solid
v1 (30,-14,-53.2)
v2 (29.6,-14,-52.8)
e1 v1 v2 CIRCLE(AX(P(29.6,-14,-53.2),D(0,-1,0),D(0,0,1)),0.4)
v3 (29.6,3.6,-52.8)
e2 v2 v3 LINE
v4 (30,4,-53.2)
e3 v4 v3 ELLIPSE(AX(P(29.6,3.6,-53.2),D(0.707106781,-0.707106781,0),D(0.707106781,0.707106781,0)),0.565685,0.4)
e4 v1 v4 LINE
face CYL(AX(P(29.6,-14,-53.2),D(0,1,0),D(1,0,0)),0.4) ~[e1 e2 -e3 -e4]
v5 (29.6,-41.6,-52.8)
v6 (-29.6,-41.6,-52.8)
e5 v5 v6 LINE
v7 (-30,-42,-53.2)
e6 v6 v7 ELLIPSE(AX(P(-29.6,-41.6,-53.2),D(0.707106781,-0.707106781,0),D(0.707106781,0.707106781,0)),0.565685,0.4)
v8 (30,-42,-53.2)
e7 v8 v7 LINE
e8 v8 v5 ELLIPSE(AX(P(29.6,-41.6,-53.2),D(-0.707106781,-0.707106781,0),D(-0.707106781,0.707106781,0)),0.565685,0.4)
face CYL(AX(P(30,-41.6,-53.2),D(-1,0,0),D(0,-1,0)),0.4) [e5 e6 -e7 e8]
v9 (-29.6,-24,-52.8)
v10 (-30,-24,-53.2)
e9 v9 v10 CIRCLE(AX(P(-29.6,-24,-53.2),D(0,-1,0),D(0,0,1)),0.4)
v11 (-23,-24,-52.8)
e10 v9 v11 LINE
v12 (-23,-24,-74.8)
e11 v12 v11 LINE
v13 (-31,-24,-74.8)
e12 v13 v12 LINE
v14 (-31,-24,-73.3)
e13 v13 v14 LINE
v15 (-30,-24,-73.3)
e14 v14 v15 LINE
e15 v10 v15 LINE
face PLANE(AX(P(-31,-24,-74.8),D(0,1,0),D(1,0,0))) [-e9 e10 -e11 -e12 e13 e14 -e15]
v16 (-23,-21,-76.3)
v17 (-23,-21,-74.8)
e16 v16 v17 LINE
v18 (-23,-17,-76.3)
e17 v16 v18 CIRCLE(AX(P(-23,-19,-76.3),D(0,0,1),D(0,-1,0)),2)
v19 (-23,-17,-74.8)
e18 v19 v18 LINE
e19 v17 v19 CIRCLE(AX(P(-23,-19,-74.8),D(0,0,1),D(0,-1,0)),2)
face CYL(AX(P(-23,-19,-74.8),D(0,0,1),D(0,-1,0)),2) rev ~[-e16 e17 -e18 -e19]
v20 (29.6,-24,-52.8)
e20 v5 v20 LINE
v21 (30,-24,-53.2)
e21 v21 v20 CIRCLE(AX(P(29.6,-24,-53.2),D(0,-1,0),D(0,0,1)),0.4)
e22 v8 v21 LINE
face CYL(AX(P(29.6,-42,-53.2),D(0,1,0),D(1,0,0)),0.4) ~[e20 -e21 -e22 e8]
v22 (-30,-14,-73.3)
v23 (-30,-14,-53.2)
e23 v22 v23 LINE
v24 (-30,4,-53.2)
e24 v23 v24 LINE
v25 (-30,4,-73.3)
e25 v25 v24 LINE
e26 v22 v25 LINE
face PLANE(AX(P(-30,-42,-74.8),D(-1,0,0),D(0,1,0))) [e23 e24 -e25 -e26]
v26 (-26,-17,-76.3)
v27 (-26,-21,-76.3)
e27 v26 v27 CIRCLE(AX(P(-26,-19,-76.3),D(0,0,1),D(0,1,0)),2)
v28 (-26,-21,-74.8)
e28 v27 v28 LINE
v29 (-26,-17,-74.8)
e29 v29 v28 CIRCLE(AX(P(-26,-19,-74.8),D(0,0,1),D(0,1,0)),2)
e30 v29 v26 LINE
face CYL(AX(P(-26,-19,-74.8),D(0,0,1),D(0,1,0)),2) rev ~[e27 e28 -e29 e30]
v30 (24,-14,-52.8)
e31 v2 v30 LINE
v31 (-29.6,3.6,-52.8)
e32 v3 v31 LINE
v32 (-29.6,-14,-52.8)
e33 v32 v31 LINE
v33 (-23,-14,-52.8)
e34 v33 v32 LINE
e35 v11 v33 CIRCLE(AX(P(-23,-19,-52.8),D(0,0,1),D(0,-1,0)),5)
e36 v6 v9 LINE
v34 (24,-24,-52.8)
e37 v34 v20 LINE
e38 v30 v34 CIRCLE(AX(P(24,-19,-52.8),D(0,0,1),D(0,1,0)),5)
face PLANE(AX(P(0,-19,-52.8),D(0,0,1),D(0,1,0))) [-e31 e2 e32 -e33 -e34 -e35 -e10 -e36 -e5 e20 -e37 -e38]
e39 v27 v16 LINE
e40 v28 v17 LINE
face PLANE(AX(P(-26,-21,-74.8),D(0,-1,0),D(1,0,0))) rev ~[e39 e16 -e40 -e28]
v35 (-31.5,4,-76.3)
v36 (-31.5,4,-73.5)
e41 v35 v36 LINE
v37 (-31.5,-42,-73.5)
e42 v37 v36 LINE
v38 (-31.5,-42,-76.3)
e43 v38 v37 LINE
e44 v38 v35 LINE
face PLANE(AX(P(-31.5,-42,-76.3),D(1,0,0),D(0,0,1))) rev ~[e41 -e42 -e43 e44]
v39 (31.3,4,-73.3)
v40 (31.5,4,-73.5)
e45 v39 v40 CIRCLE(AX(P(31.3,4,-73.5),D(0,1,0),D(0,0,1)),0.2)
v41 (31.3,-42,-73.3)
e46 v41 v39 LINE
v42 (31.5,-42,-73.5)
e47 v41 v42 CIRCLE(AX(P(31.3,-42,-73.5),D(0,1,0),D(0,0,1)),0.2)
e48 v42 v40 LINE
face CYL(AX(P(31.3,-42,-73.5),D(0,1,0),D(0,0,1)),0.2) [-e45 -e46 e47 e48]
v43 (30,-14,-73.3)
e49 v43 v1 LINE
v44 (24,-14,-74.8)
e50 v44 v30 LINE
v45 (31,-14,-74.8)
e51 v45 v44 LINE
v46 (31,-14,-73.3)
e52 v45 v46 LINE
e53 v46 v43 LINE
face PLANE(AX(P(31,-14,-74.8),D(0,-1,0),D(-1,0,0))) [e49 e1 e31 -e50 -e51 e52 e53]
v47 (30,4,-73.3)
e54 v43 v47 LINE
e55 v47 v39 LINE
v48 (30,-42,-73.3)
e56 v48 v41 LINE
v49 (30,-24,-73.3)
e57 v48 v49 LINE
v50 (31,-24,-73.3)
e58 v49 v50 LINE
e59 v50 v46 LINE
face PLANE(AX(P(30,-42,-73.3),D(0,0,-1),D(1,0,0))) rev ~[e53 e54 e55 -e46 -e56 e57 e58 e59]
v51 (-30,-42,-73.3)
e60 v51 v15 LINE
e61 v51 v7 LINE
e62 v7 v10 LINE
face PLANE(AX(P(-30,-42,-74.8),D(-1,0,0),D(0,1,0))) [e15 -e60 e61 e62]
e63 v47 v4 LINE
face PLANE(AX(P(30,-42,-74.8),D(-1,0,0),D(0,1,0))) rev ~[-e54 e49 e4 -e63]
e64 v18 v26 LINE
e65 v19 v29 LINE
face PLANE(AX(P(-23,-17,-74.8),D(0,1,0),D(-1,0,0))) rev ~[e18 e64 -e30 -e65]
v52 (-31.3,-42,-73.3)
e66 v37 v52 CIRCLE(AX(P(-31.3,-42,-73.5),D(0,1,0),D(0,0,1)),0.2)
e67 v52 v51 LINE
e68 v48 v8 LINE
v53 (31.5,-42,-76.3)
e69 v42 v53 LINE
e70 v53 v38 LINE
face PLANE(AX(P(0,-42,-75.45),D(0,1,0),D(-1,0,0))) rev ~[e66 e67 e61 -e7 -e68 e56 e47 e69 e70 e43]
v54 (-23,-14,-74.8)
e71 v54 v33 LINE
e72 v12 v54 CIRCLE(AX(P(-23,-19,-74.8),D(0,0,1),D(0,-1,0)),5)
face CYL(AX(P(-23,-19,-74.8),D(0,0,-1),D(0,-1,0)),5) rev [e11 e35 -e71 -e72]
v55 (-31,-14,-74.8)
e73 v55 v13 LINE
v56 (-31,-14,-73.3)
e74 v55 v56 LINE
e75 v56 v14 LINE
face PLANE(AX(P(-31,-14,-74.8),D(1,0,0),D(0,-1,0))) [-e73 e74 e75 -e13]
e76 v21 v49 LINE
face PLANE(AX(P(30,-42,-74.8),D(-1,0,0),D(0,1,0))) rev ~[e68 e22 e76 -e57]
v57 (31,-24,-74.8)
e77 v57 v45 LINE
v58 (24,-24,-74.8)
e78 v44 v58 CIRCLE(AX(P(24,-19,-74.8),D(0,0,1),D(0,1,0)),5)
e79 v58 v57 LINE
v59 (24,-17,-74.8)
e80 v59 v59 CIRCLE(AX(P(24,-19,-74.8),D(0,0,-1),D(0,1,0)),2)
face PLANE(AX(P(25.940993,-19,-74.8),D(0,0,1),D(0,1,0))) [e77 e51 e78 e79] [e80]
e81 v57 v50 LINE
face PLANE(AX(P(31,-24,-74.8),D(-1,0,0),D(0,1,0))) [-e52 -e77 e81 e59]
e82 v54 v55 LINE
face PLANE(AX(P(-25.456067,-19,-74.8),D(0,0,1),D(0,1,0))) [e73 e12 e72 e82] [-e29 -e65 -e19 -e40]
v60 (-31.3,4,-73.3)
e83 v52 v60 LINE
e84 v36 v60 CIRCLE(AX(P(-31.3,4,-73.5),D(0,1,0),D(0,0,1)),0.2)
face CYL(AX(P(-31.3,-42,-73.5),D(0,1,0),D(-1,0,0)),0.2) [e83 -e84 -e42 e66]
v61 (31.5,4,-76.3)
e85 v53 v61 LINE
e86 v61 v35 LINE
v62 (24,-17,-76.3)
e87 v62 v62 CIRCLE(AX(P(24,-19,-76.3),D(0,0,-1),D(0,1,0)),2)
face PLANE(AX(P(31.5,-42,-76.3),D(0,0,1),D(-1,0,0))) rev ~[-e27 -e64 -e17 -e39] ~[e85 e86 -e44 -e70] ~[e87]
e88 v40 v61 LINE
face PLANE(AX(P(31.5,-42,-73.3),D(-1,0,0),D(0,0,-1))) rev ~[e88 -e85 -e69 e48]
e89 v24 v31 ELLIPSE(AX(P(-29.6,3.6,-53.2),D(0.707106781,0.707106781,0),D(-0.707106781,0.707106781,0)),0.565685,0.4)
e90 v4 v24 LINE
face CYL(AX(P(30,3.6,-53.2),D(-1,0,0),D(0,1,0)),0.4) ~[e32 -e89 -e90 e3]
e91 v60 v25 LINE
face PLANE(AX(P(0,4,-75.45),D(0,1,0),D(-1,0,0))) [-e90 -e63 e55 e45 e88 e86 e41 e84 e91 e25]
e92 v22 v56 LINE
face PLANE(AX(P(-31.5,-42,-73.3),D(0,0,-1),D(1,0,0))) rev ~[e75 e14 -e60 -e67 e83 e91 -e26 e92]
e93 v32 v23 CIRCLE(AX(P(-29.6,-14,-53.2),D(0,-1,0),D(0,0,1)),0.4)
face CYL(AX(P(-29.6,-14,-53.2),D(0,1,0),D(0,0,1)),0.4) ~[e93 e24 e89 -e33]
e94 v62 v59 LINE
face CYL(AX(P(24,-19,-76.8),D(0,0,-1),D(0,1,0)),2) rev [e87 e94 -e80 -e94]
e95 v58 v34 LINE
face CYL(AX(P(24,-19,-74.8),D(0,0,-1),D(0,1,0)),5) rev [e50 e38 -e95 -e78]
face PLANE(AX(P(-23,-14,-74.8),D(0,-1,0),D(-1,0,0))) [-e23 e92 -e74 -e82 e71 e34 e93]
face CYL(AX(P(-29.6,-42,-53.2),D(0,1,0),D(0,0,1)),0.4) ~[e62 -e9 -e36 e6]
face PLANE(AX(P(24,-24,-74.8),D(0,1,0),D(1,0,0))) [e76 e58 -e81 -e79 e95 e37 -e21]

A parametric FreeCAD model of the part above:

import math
import FreeCAD as App
import Part
import Sketcher
from FreeCAD import Vector
Q = App.Units.Quantity


def edges_at(feature, points):
    """Names of the edges that pass closest to the given points."""
    edges = feature.Shape.Edges
    near = lambda p: min(range(len(edges)), key=lambda i: edges[i].distToShape(Part.Vertex(*p))[0])
    return sorted({f"Edge{near(p) + 1}" for p in points})

doc = App.newDocument("Part")
body = doc.addObject("PartDesign::Body", "Body")

# Sketch on XY plane
sketch1 = body.newObject("Sketcher::SketchObject", "Sketch")
sketch1.AttachmentSupport = (doc.getObject("XY_Plane"), [""])
sketch1.MapMode = "FlatFace"
sketch1.addGeometry([
    Part.LineSegment(Vector(0, 60, 0), Vector(0, 0, 0)),
    Part.LineSegment(Vector(0, 0, 0), Vector(46, 0, 0)),
    Part.LineSegment(Vector(46, 0, 0), Vector(46, 60, 0)),
    Part.LineSegment(Vector(46, 60, 0), Vector(0, 60, 0)),
], False)
sketch1.addConstraint([
    Sketcher.Constraint("Coincident", 0, 2, 1, 1),
    Sketcher.Constraint("Coincident", 1, 2, 2, 1),
    Sketcher.Constraint("Coincident", 2, 2, 3, 1),
    Sketcher.Constraint("Coincident", 3, 2, 0, 1),
    Sketcher.Constraint("Vertical", 0),
    Sketcher.Constraint("Horizontal", 1),
    Sketcher.Constraint("Vertical", 2),
    Sketcher.Constraint("Horizontal", 3),
    Sketcher.Constraint("Coincident", 0, 2, -1, 1),
    Sketcher.Constraint("DistanceX", 1, 1, 1, 2, Q("46 mm")),
    Sketcher.Constraint("DistanceY", 0, 2, 0, 1, Q("60 mm")),
])
pad1 = body.newObject("PartDesign::Pad", "Pad")
pad1.Profile = sketch1
pad1.Length = 22

# Sketch on YZ plane
sketch2 = body.newObject("Sketcher::SketchObject", "Sketch001")
sketch2.AttachmentSupport = (doc.getObject("YZ_Plane"), [""])
sketch2.MapMode = "FlatFace"
sketch2.addGeometry([
    Part.LineSegment(Vector(0, 1.5, 0), Vector(-1.5, 1.5, 0)),  # 0
    Part.LineSegment(Vector(-1.5, 1.5, 0), Vector(-1.5, -1.5, 0)),  # 1
    Part.LineSegment(Vector(-1.5, -1.5, 0), Vector(61.5, -1.5, 0)),  # 2
    Part.LineSegment(Vector(61.5, -1.5, 0), Vector(61.5, 1.5, 0)),  # 3
    Part.LineSegment(Vector(61.5, 1.5, 0), Vector(60, 1.5, 0)),  # 4
    Part.LineSegment(Vector(60, 1.5, 0), Vector(60, 0, 0)),  # 5
    Part.LineSegment(Vector(60, 0, 0), Vector(0, 0, 0)),  # 6
    Part.LineSegment(Vector(0, 0, 0), Vector(0, 1.5, 0)),  # 7
], False)
sketch2.addConstraint([
    Sketcher.Constraint("Coincident", 0, 2, 1, 1),
    Sketcher.Constraint("Coincident", 1, 2, 2, 1),
    Sketcher.Constraint("Coincident", 2, 2, 3, 1),
    Sketcher.Constraint("Coincident", 3, 2, 4, 1),
    Sketcher.Constraint("Coincident", 4, 2, 5, 1),
    Sketcher.Constraint("Coincident", 5, 2, 6, 1),
    Sketcher.Constraint("Coincident", 6, 2, 7, 1),
    Sketcher.Constraint("Coincident", 7, 2, 0, 1),
    Sketcher.Constraint("Horizontal", 0),
    Sketcher.Constraint("Vertical", 1),
    Sketcher.Constraint("Horizontal", 2),
    Sketcher.Constraint("Vertical", 3),
    Sketcher.Constraint("Horizontal", 4),
    Sketcher.Constraint("Vertical", 5),
    Sketcher.Constraint("Horizontal", 6),
    Sketcher.Constraint("Vertical", 7),
    Sketcher.Constraint("Coincident", 6, 2, -1, 1),
    Sketcher.Constraint("Horizontal", 0, 2, 3, 2),
    Sketcher.Constraint("Equal", 0, 4),
    Sketcher.Constraint("Equal", 4, 5),
    Sketcher.Constraint("DistanceX", 2, 1, 2, 2, Q("63 mm")),
    Sketcher.Constraint("DistanceX", 6, 2, 6, 1, Q("60 mm")),
    Sketcher.Constraint("DistanceY", 1, 2, 1, 1, Q("3 mm")),
])
pad2 = body.newObject("PartDesign::Pad", "Pad001")
pad2.Profile = sketch2
pad2.Length = 46

# Sketch on XY plane
sketch3 = body.newObject("Sketcher::SketchObject", "Sketch002")
sketch3.AttachmentSupport = (doc.getObject("XY_Plane"), [""])
sketch3.MapMode = "FlatFace"
sketch3.addGeometry([
    Part.ArcOfCircle(Part.Circle(Vector(23, 6, 0), Vector(0, 0, 1), 5), math.radians(0), math.radians(180)),
    Part.LineSegment(Vector(18, 6, 0), Vector(18, -1, 0)),
    Part.LineSegment(Vector(18, -1, 0), Vector(28, -1, 0)),
    Part.LineSegment(Vector(28, -1, 0), Vector(28, 6, 0)),
], False)
sketch3.addConstraint([
    Sketcher.Constraint("Tangent", 0, 2, 1, 1),
    Sketcher.Constraint("Coincident", 1, 2, 2, 1),
    Sketcher.Constraint("Coincident", 2, 2, 3, 1),
    Sketcher.Constraint("Tangent", 3, 2, 0, 1),
    Sketcher.Constraint("Vertical", 1),
    Sketcher.Constraint("Horizontal", 2),
    Sketcher.Constraint("Vertical", 3),
    Sketcher.Constraint("Radius", 0, Q("5 mm")),
    Sketcher.Constraint("DistanceY", 1, 2, 1, 1, Q("7 mm")),
    Sketcher.Constraint("DistanceX", -1, 1, 0, 3, Q("23 mm")),
    Sketcher.Constraint("DistanceY", -1, 1, 0, 3, Q("6 mm")),
])
pocket1 = body.newObject("PartDesign::Pocket", "Pocket")
pocket1.Profile = sketch3
pocket1.Length = 22
pocket1.Reversed = True

# Sketch on XY plane
sketch4 = body.newObject("Sketcher::SketchObject", "Sketch003")
sketch4.AttachmentSupport = (doc.getObject("XY_Plane"), [""])
sketch4.MapMode = "FlatFace"
sketch4.addGeometry([
    Part.ArcOfCircle(Part.Circle(Vector(23, 53, 0), Vector(0, 0, 1), 5), math.radians(180), math.radians(360)),
    Part.LineSegment(Vector(28, 53, 0), Vector(28, 61, 0)),
    Part.LineSegment(Vector(28, 61, 0), Vector(18, 61, 0)),
    Part.LineSegment(Vector(18, 61, 0), Vector(18, 53, 0)),
], False)
sketch4.addConstraint([
    Sketcher.Constraint("Tangent", 0, 2, 1, 1),
    Sketcher.Constraint("Coincident", 1, 2, 2, 1),
    Sketcher.Constraint("Coincident", 2, 2, 3, 1),
    Sketcher.Constraint("Tangent", 3, 2, 0, 1),
    Sketcher.Constraint("Vertical", 1),
    Sketcher.Constraint("Horizontal", 2),
    Sketcher.Constraint("Vertical", 3),
    Sketcher.Constraint("Radius", 0, Q("5 mm")),
    Sketcher.Constraint("DistanceY", 1, 1, 1, 2, Q("8 mm")),
    Sketcher.Constraint("DistanceX", -1, 1, 0, 3, Q("23 mm")),
    Sketcher.Constraint("DistanceY", -1, 1, 0, 3, Q("53 mm")),
])
pocket2 = body.newObject("PartDesign::Pocket", "Pocket001")
pocket2.Profile = sketch4
pocket2.Length = 22
pocket2.Reversed = True

# Sketch on XY plane
sketch5 = body.newObject("Sketcher::SketchObject", "Sketch004")
sketch5.AttachmentSupport = (doc.getObject("XY_Plane"), [""])
sketch5.MapMode = "FlatFace"
sketch5.AttachmentOffset = App.Placement(Vector(0, 0, -2), App.Rotation())
sketch5.addGeometry(Part.Circle(Vector(23, 6, 0), Vector(0, 0, 1), 2), False)
sketch5.addConstraint([
    Sketcher.Constraint("Diameter", 0, Q("4 mm")),
    Sketcher.Constraint("DistanceX", -1, 1, 0, 3, Q("23 mm")),
    Sketcher.Constraint("DistanceY", -1, 1, 0, 3, Q("6 mm")),
])
pocket3 = body.newObject("PartDesign::Pocket", "Pocket002")
pocket3.Profile = sketch5
pocket3.Length = 4
pocket3.Reversed = True

# Sketch on XY plane
sketch6 = body.newObject("Sketcher::SketchObject", "Sketch005")
sketch6.AttachmentSupport = (doc.getObject("XY_Plane"), [""])
sketch6.MapMode = "FlatFace"
sketch6.addGeometry([
    Part.ArcOfCircle(Part.Circle(Vector(23, 56, 0), Vector(0, 0, 1), 2), math.radians(0), math.radians(180)),
    Part.LineSegment(Vector(21, 56, 0), Vector(21, 53, 0)),
    Part.ArcOfCircle(Part.Circle(Vector(23, 53, 0), Vector(0, 0, 1), 2), math.radians(180), math.radians(360)),
    Part.LineSegment(Vector(25, 53, 0), Vector(25, 56, 0)),
], False)
sketch6.addConstraint([
    Sketcher.Constraint("Tangent", 0, 2, 1, 1),
    Sketcher.Constraint("Tangent", 1, 2, 2, 1),
    Sketcher.Constraint("Tangent", 2, 2, 3, 1),
    Sketcher.Constraint("Tangent", 3, 2, 0, 1),
    Sketcher.Constraint("Vertical", 1),
    Sketcher.Constraint("Vertical", 3),
    Sketcher.Constraint("Radius", 0, Q("2 mm")),
    Sketcher.Constraint("DistanceY", 1, 2, 1, 1, Q("3 mm")),
    Sketcher.Constraint("DistanceX", -1, 1, 0, 3, Q("23 mm")),
    Sketcher.Constraint("DistanceY", -1, 1, 0, 3, Q("56 mm")),
])
pocket4 = body.newObject("PartDesign::Pocket", "Pocket003")
pocket4.Profile = sketch6
pocket4.Length = 4
pocket4.Midplane = True
doc.recompute()

fillet = body.newObject("PartDesign::Fillet", "Fillet")
fillet.Base = (pocket4, edges_at(pocket4, [(23, -1.5, 1.5), (23, 61.5, 1.5)]))
fillet.Radius = 0.2
doc.recompute()

fillet2 = body.newObject("PartDesign::Fillet", "Fillet001")
fillet2.Base = (fillet, edges_at(fillet, [
    (9, 0, 22),
    (37, 0, 22),
    (46, 30, 22),
    (37, 60, 22),
    (9, 60, 22),
    (0, 30, 22),
]))
fillet2.Radius = 0.4
body2 = doc.addObject("PartDesign::Body", "Body001")
doc.recompute()

body.Placement = App.Placement(Vector(30, -42, -74.8), App.Rotation(Vector(0, 0, 1), 90))
boolean = body2.newObject("PartDesign::Boolean", "Boolean")
boolean.Type = "Fuse"
boolean.addObjects([body])

doc.recompute()
